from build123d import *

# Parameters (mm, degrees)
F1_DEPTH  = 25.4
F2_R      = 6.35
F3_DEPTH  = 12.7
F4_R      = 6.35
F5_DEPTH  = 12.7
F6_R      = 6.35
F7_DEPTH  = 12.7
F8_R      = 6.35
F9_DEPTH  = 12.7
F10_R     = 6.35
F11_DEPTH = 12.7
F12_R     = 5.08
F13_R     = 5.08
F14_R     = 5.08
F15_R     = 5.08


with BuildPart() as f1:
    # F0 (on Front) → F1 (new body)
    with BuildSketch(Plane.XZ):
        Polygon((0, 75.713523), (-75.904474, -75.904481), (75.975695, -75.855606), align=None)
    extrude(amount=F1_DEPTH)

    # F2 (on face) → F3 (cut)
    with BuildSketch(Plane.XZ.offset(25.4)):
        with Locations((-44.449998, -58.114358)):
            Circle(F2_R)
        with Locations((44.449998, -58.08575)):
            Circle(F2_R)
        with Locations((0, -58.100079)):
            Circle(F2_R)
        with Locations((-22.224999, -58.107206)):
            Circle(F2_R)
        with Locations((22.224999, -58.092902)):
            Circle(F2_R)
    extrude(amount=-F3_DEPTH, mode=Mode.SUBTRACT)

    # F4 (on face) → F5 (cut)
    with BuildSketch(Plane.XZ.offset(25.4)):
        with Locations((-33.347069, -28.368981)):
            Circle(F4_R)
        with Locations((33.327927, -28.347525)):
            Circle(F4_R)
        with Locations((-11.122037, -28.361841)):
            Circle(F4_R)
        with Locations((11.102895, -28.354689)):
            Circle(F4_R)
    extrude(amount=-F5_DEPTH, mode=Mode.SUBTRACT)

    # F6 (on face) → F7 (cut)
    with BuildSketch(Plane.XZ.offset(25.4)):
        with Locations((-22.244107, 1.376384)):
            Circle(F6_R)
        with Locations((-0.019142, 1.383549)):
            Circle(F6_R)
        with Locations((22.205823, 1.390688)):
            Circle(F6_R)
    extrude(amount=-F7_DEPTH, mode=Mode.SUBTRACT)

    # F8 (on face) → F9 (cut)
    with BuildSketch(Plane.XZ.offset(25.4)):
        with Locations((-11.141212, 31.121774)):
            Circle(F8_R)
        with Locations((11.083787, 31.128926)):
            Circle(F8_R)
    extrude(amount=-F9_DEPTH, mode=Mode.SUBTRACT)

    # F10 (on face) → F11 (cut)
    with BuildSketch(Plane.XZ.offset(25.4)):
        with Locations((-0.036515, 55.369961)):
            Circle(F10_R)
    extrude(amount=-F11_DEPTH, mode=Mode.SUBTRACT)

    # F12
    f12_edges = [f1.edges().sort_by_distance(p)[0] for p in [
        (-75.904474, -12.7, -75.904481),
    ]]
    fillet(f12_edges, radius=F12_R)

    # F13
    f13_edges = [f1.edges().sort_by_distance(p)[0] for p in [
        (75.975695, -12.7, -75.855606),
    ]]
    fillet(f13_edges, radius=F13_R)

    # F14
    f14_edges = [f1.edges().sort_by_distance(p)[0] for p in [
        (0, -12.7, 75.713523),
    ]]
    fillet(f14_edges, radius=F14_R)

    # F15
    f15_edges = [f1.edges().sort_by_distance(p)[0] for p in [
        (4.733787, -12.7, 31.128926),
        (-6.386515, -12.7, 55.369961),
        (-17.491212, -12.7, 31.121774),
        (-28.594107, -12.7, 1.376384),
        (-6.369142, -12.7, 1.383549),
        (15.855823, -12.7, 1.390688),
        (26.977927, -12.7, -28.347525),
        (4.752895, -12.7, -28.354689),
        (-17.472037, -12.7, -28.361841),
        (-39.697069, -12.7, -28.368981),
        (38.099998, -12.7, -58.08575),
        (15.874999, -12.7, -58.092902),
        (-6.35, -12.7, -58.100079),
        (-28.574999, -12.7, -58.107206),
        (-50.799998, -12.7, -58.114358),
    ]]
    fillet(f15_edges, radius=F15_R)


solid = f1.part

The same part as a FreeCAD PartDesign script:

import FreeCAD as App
import Part
import Sketcher
Q = App.Units.Quantity


def edges_at(feature, points):
    """Names of the edges that pass closest to the given points."""
    edges = feature.Shape.Edges
    near = lambda p: min(range(len(edges)), key=lambda i: edges[i].distToShape(Part.Vertex(*p))[0])
    return sorted({f"Edge{near(p) + 1}" for p in points})


def add_polygon(sketch, points):
    """Adds a closed chain of lines whose ends are joined by coincident constraints."""
    first, n = sketch.GeometryCount, len(points)
    for a, b in zip(points, points[1:] + points[:1]):
        sketch.addGeometry(Part.LineSegment(App.Vector(*a, 0), App.Vector(*b, 0)), False)
    for i in range(n):
        sketch.addConstraint(Sketcher.Constraint("Coincident", first + i, 2, first + (i + 1) % n, 1))

doc = App.newDocument("Part")
body = doc.addObject("PartDesign::Body", "Body")

sketch1 = doc.addObject("Sketcher::SketchObject", "Sketch")
body.addObject(sketch1)
sketch1.AttachmentSupport = (doc.XZ_Plane, [""])
sketch1.MapMode = "FlatFace"
add_polygon(sketch1, [(0, 76), (-76, -76), (76, -76)])
sketch1.addConstraint(Sketcher.Constraint("PointOnObject", 2, 2, -2))
sketch1.addConstraint(Sketcher.Constraint("Distance", 2, Q("6.675 in")))
sketch1.addConstraint(Sketcher.Constraint("Distance", 0, Q("169.5568 mm")))
sketch1.addConstraint(Sketcher.Constraint("DistanceY", 0, 2, -1, 1, Q("75.904481 mm")))
sketch1.addConstraint(Sketcher.Constraint("DistanceX", 0, 2, 1, 2, Q("151.880169 mm")))
sketch1.addConstraint(Sketcher.Constraint("DistanceY", 1, 2, 2, 2, Q("151.569129 mm")))
pad1 = doc.addObject("PartDesign::Pad", "Pad")
body.addObject(pad1)
pad1.Profile = sketch1
pad1.Length = Q("1 in")

sketch2 = doc.addObject("Sketcher::SketchObject", "Sketch001")
body.addObject(sketch2)
sketch2.AttachmentSupport = (doc.XZ_Plane, [""])
sketch2.MapMode = "FlatFace"
sketch2.AttachmentOffset = App.Placement(App.Vector(0, 0, 1 * 25.4), App.Rotation())
sketch2.addGeometry(Part.Circle(App.Vector(-44, -58, 0), App.Vector(0, 0, 1), 6), False)
sketch2.addGeometry(Part.Circle(App.Vector(44, -58, 0), App.Vector(0, 0, 1), 6), False)
sketch2.addGeometry(Part.Circle(App.Vector(0, -58, 0), App.Vector(0, 0, 1), 6), False)
sketch2.addGeometry(Part.Circle(App.Vector(-22, -58, 0), App.Vector(0, 0, 1), 6), False)
sketch2.addGeometry(Part.Circle(App.Vector(22, -58, 0), App.Vector(0, 0, 1), 6), False)
sketch2.addConstraint(Sketcher.Constraint("Equal", 0, 1))
sketch2.addConstraint(Sketcher.Constraint("Equal", 1, 2))
sketch2.addConstraint(Sketcher.Constraint("Equal", 2, 3))
sketch2.addConstraint(Sketcher.Constraint("Equal", 3, 4))
sketch2.addConstraint(Sketcher.Constraint("PointOnObject", 2, 3, -2))
sketch2.addConstraint(Sketcher.Constraint("Diameter", 0, Q("0.5 in")))
sketch2.addConstraint(Sketcher.Constraint("DistanceX", 0, 3, 1, 3, Q("3.4999998 in")))
sketch2.addConstraint(Sketcher.Constraint("DistanceX", 0, 3, -1, 1, Q("1.7499999 in")))
sketch2.addConstraint(Sketcher.Constraint("DistanceX", 3, 3, 4, 3, Q("1.7499999 in")))
sketch2.addConstraint(Sketcher.Constraint("DistanceX", 3, 3, -1, 1, Q("0.875 in")))
sketch2.addConstraint(Sketcher.Constraint("DistanceY", 0, 3, -1, 1, Q("58.114358 mm")))
sketch2.addConstraint(Sketcher.Constraint("DistanceY", 1, 3, -1, 1, Q("58.08575 mm")))
sketch2.addConstraint(Sketcher.Constraint("DistanceY", 2, 3, -1, 1, Q("58.100079 mm")))
sketch2.addConstraint(Sketcher.Constraint("DistanceY", 3, 3, -1, 1, Q("58.107206 mm")))
sketch2.addConstraint(Sketcher.Constraint("DistanceY", 4, 3, -1, 1, Q("58.092902 mm")))
pocket1 = doc.addObject("PartDesign::Pocket", "Pocket")
body.addObject(pocket1)
pocket1.Profile = sketch2
pocket1.Length = Q("0.5 in")

sketch3 = doc.addObject("Sketcher::SketchObject", "Sketch002")
body.addObject(sketch3)
sketch3.AttachmentSupport = (doc.XZ_Plane, [""])
sketch3.MapMode = "FlatFace"
sketch3.AttachmentOffset = App.Placement(App.Vector(0, 0, 1 * 25.4), App.Rotation())
sketch3.addGeometry(Part.Circle(App.Vector(-33, -28, 0), App.Vector(0, 0, 1), 6), False)
sketch3.addGeometry(Part.Circle(App.Vector(33, -28, 0), App.Vector(0, 0, 1), 6), False)
sketch3.addGeometry(Part.Circle(App.Vector(-11, -28, 0), App.Vector(0, 0, 1), 6), False)
sketch3.addGeometry(Part.Circle(App.Vector(11, -28, 0), App.Vector(0, 0, 1), 6), False)
sketch3.addConstraint(Sketcher.Constraint("Equal", 0, 1))
sketch3.addConstraint(Sketcher.Constraint("Equal", 1, 2))
sketch3.addConstraint(Sketcher.Constraint("Equal", 2, 3))
sketch3.addConstraint(Sketcher.Constraint("Diameter", 0, Q("0.5 in")))
sketch3.addConstraint(Sketcher.Constraint("DistanceX", 0, 3, 1, 3, Q("2.6249998 in")))
sketch3.addConstraint(Sketcher.Constraint("DistanceX", 0, 3, -1, 1, Q("33.347069 mm")))
sketch3.addConstraint(Sketcher.Constraint("DistanceY", 0, 3, -1, 1, Q("28.368981 mm")))
sketch3.addConstraint(Sketcher.Constraint("DistanceY", 2, 3, -1, 1, Q("28.361841 mm")))
sketch3.addConstraint(Sketcher.Constraint("DistanceY", 3, 3, -1, 1, Q("28.354689 mm")))
sketch3.addConstraint(Sketcher.Constraint("DistanceX", 0, 3, 2, 3, Q("22.225032 mm")))
sketch3.addConstraint(Sketcher.Constraint("DistanceY", 1, 3, -1, 1, Q("28.347525 mm")))
sketch3.addConstraint(Sketcher.Constraint("DistanceX", -1, 1, 3, 3, Q("11.102895 mm")))
pocket2 = doc.addObject("PartDesign::Pocket", "Pocket001")
body.addObject(pocket2)
pocket2.Profile = sketch3
pocket2.Length = Q("0.5 in")

sketch4 = doc.addObject("Sketcher::SketchObject", "Sketch003")
body.addObject(sketch4)
sketch4.AttachmentSupport = (doc.XZ_Plane, [""])
sketch4.MapMode = "FlatFace"
sketch4.AttachmentOffset = App.Placement(App.Vector(0, 0, 1 * 25.4), App.Rotation())
sketch4.addGeometry(Part.Circle(App.Vector(-22, 1, 0), App.Vector(0, 0, 1), 6), False)
sketch4.addGeometry(Part.Circle(App.Vector(0, 1, 0), App.Vector(0, 0, 1), 6), False)
sketch4.addGeometry(Part.Circle(App.Vector(22, 1, 0), App.Vector(0, 0, 1), 6), False)
sketch4.addConstraint(Sketcher.Constraint("Equal", 0, 1))
sketch4.addConstraint(Sketcher.Constraint("Equal", 1, 2))
sketch4.addConstraint(Sketcher.Constraint("Diameter", 0, Q("0.5 in")))
sketch4.addConstraint(Sketcher.Constraint("DistanceX", 1, 3, -1, 1, Q("0.019142 mm")))
sketch4.addConstraint(Sketcher.Constraint("DistanceY", -1, 1, 1, 3, Q("1.383549 mm")))
sketch4.addConstraint(Sketcher.Constraint("DistanceY", 1, 3, 2, 3, Q("0.007139 mm")))
sketch4.addConstraint(Sketcher.Constraint("DistanceX", 0, 3, 2, 3, Q("44.44993 mm")))
sketch4.addConstraint(Sketcher.Constraint("DistanceX", 0, 3, -1, 1, Q("22.244107 mm")))
sketch4.addConstraint(Sketcher.Constraint("DistanceY", -1, 1, 0, 3, Q("1.376384 mm")))
pocket3 = doc.addObject("PartDesign::Pocket", "Pocket002")
body.addObject(pocket3)
pocket3.Profile = sketch4
pocket3.Length = Q("0.5 in")

sketch5 = doc.addObject("Sketcher::SketchObject", "Sketch004")
body.addObject(sketch5)
sketch5.AttachmentSupport = (doc.XZ_Plane, [""])
sketch5.MapMode = "FlatFace"
sketch5.AttachmentOffset = App.Placement(App.Vector(0, 0, 1 * 25.4), App.Rotation())
sketch5.addGeometry(Part.Circle(App.Vector(-11, 31, 0), App.Vector(0, 0, 1), 6), False)
sketch5.addGeometry(Part.Circle(App.Vector(11, 31, 0), App.Vector(0, 0, 1), 6), False)
sketch5.addConstraint(Sketcher.Constraint("Equal", 0, 1))
sketch5.addConstraint(Sketcher.Constraint("Diameter", 0, Q("0.5 in")))
sketch5.addConstraint(Sketcher.Constraint("DistanceX", 0, 3, 1, 3, Q("0.875 in")))
sketch5.addConstraint(Sketcher.Constraint("DistanceX", 0, 3, -1, 1, Q("11.141212 mm")))
sketch5.addConstraint(Sketcher.Constraint("DistanceY", -1, 1, 0, 3, Q("31.121774 mm")))
sketch5.addConstraint(Sketcher.Constraint("DistanceY", -1, 1, 1, 3, Q("31.128926 mm")))
pocket4 = doc.addObject("PartDesign::Pocket", "Pocket003")
body.addObject(pocket4)
pocket4.Profile = sketch5
pocket4.Length = Q("0.5 in")

sketch6 = doc.addObject("Sketcher::SketchObject", "Sketch005")
body.addObject(sketch6)
sketch6.AttachmentSupport = (doc.XZ_Plane, [""])
sketch6.MapMode = "FlatFace"
sketch6.AttachmentOffset = App.Placement(App.Vector(0, 0, 1 * 25.4), App.Rotation())
sketch6.addGeometry(Part.Circle(App.Vector(0, 55, 0), App.Vector(0, 0, 1), 6), False)
sketch6.addConstraint(Sketcher.Constraint("Diameter", 0, Q("0.5 in")))
sketch6.addConstraint(Sketcher.Constraint("DistanceY", -1, 1, 0, 3, Q("55.369961 mm")))
sketch6.addConstraint(Sketcher.Constraint("DistanceX", 0, 3, -1, 1, Q("0.036515 mm")))
pocket5 = doc.addObject("PartDesign::Pocket", "Pocket004")
body.addObject(pocket5)
pocket5.Profile = sketch6
pocket5.Length = Q("0.5 in")
doc.recompute()

fillet = doc.addObject("PartDesign::Fillet", "Fillet")
body.addObject(fillet)
fillet.Base = (pocket5, edges_at(pocket5, [(-75.904, -12.7, -75.904)]))
fillet.Radius = Q("0.2 in")
doc.recompute()

fillet2 = doc.addObject("PartDesign::Fillet", "Fillet001")
body.addObject(fillet2)
fillet2.Base = (fillet, edges_at(fillet, [(75.976, -12.7, -75.856)]))
fillet2.Radius = Q("0.2 in")
doc.recompute()

fillet3 = doc.addObject("PartDesign::Fillet", "Fillet002")
body.addObject(fillet3)
fillet3.Base = (fillet2, edges_at(fillet2, [(0, -12.7, 75.714)]))
fillet3.Radius = Q("0.2 in")
doc.recompute()

fillet4 = doc.addObject("PartDesign::Fillet", "Fillet003")
body.addObject(fillet4)
fillet4.Base = (fillet3, edges_at(fillet3, [
    (4.734, -12.7, 31.129),
    (-6.387, -12.7, 55.37),
    (-17.491, -12.7, 31.122),
    (-28.594, -12.7, 1.376),
    (-6.369, -12.7, 1.384),
    (15.856, -12.7, 1.391),
    (26.978, -12.7, -28.348),
    (4.753, -12.7, -28.355),
    (-17.472, -12.7, -28.362),
    (-39.697, -12.7, -28.369),
    (38.1, -12.7, -58.086),
    (15.875, -12.7, -58.093),
    (-6.35, -12.7, -58.1),
    (-28.575, -12.7, -58.107),
    (-50.8, -12.7, -58.114),
]))
fillet4.Radius = Q("0.2 in")

doc.recompute()
